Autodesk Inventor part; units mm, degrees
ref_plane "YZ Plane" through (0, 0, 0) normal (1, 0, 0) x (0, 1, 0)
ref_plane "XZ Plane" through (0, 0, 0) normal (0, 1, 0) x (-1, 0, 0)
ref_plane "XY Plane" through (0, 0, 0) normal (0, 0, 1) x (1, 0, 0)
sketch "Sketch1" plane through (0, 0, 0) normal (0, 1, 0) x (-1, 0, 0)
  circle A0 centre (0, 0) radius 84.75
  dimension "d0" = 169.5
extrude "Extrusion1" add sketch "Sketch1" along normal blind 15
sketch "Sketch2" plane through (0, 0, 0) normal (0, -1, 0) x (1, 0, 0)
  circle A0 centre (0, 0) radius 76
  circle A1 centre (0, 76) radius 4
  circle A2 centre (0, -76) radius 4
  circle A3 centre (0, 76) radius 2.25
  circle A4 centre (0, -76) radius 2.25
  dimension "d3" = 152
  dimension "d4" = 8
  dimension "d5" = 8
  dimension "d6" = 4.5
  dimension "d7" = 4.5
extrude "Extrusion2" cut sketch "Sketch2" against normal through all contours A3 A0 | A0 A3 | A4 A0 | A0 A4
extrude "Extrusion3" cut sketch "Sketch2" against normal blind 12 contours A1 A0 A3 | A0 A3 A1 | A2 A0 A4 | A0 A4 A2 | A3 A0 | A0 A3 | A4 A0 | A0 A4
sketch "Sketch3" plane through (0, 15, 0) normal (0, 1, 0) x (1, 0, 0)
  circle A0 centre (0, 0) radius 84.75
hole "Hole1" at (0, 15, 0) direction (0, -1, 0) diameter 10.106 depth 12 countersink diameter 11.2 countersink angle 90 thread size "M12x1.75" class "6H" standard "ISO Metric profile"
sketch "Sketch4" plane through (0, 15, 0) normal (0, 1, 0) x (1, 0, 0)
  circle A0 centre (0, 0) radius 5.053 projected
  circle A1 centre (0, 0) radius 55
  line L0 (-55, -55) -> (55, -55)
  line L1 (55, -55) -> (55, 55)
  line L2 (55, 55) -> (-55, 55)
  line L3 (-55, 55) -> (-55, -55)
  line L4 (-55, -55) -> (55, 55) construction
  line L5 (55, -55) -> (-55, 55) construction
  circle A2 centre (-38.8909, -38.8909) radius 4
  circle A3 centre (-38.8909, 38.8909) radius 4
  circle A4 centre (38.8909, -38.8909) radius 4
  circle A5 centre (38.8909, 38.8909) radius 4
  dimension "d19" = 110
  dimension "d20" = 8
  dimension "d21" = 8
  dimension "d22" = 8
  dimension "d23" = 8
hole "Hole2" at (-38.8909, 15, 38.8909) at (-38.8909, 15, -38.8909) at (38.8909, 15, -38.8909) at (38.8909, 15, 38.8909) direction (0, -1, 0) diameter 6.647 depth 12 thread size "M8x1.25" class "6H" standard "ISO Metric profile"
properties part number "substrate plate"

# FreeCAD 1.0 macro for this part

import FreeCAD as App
import Part
import Sketcher

doc = App.newDocument("Part")
params = doc.addObject("Spreadsheet::Sheet", "Params")
for row, (alias, value) in enumerate([
    ("sketch1_diameter", "169.5 mm"),
    ("pad1_length", "15 mm"),
    ("sketch2_diameter", "4.5 mm"),
    ("sketch3_diameter", "8 mm"),
    ("pocket2_length", "12 mm"),
    ("hole_diameter", "10.106 mm"),
    ("hole_depth", "12 mm"),
    ("hole_csink_diameter", "11.2 mm"),
    ("hole2_diameter", "6.647 mm"),
    ("hole2_depth", "12 mm"),
], start=1):
    params.set(f"A{row}", alias)
    params.set(f"B{row}", "=" + value)
    params.setAlias(f"B{row}", alias)

body = doc.addObject("PartDesign::Body", "Body")

# Sketch on XZ plane
sketch1 = doc.addObject("Sketcher::SketchObject", "Sketch")
body.addObject(sketch1)
sketch1.AttachmentSupport = (doc.XZ_Plane, [""])
sketch1.MapMode = "FlatFace"
sketch1.addGeometry(Part.Circle(App.Vector(0, 0, 0), App.Vector(0, 0, 1), 85), False)
sketch1.addConstraint([
    Sketcher.Constraint("Coincident", 0, 3, -1, 1),
    Sketcher.Constraint("Diameter", 0, 169.5),
])
sketch1.setExpression("Constraints[1]", "Params.sketch1_diameter")
pad1 = doc.addObject("PartDesign::Pad", "Pad")
body.addObject(pad1)
pad1.Profile = sketch1
pad1.setExpression("Length", "Params.pad1_length")
pad1.Reversed = True

# Sketch on XZ plane
sketch2 = doc.addObject("Sketcher::SketchObject", "Sketch001")
body.addObject(sketch2)
sketch2.AttachmentSupport = (doc.XZ_Plane, [""])
sketch2.MapMode = "FlatFace"
sketch2.addGeometry([
    Part.Circle(App.Vector(0, 76, 0), App.Vector(0, 0, 1), 2.2),
    Part.Circle(App.Vector(0, -76, 0), App.Vector(0, 0, 1), 2.2),
], False)
sketch2.addConstraint([
    Sketcher.Constraint("Equal", 0, 1),
    Sketcher.Constraint("Symmetric", 0, 3, 1, 3, -1, 1),
    Sketcher.Constraint("PointOnObject", 0, 3, -2),
    Sketcher.Constraint("Diameter", 0, 4.5),
    Sketcher.Constraint("DistanceY", 1, 3, 0, 3, 152.0),
])
sketch2.setExpression("Constraints[3]", "Params.sketch2_diameter")
pocket1 = doc.addObject("PartDesign::Pocket", "Pocket")
body.addObject(pocket1)
pocket1.Profile = sketch2
pocket1.Type = "ThroughAll"

# Sketch on XZ plane
sketch3 = doc.addObject("Sketcher::SketchObject", "Sketch002")
body.addObject(sketch3)
sketch3.AttachmentSupport = (doc.XZ_Plane, [""])
sketch3.MapMode = "FlatFace"
sketch3.addGeometry([
    Part.Circle(App.Vector(0, 76, 0), App.Vector(0, 0, 1), 4),
    Part.Circle(App.Vector(0, -76, 0), App.Vector(0, 0, 1), 4),
], False)
sketch3.addConstraint([
    Sketcher.Constraint("Equal", 0, 1),
    Sketcher.Constraint("Symmetric", 0, 3, 1, 3, -1, 1),
    Sketcher.Constraint("PointOnObject", 0, 3, -2),
    Sketcher.Constraint("Diameter", 0, 8.0),
    Sketcher.Constraint("DistanceY", 1, 3, 0, 3, 152.0),
])
sketch3.setExpression("Constraints[3]", "Params.sketch3_diameter")
pocket2 = doc.addObject("PartDesign::Pocket", "Pocket001")
body.addObject(pocket2)
pocket2.Profile = sketch3
pocket2.setExpression("Length", "Params.pocket2_length")

# Sketch on XZ plane
sketch4 = doc.addObject("Sketcher::SketchObject", "Sketch003")
body.addObject(sketch4)
sketch4.AttachmentSupport = (doc.XZ_Plane, [""])
sketch4.MapMode = "FlatFace"
sketch4.AttachmentOffset = App.Placement(App.Vector(0, 0, -15), App.Rotation())
sketch4.addGeometry(Part.Circle(App.Vector(0, 0, 0), App.Vector(0, 0, 1), 5), False)
sketch4.addConstraint([
    Sketcher.Constraint("Coincident", 0, 3, -1, 1),
    Sketcher.Constraint("Diameter", 0, 10.106),
])
doc.recompute()
hole = doc.addObject("PartDesign::Hole", "Hole")
body.addObject(hole)
hole.Profile = sketch4
hole.ThreadType = "None"
hole.setExpression("Diameter", "Params.hole_diameter")
hole.DepthType = "Dimension"
hole.setExpression("Depth", "Params.hole_depth")
hole.DrillPoint = "Flat"
hole.HoleCutType = "Countersink"
hole.setExpression("HoleCutDiameter", "Params.hole_csink_diameter")
hole.HoleCutCountersinkAngle = 90
hole.Reversed = True

# Sketch on XZ plane
sketch5 = doc.addObject("Sketcher::SketchObject", "Sketch004")
body.addObject(sketch5)
sketch5.AttachmentSupport = (doc.XZ_Plane, [""])
sketch5.MapMode = "FlatFace"
sketch5.AttachmentOffset = App.Placement(App.Vector(0, 0, -15), App.Rotation())
sketch5.addGeometry([
    Part.Circle(App.Vector(-38.9, 38.9, 0), App.Vector(0, 0, 1), 3.3),
    Part.Circle(App.Vector(-38.9, -38.9, 0), App.Vector(0, 0, 1), 3.3),
    Part.Circle(App.Vector(38.9, -38.9, 0), App.Vector(0, 0, 1), 3.3),
    Part.Circle(App.Vector(38.9, 38.9, 0), App.Vector(0, 0, 1), 3.3),
], False)
sketch5.addConstraint([
    Sketcher.Constraint("Equal", 0, 1),
    Sketcher.Constraint("Equal", 1, 2),
    Sketcher.Constraint("Equal", 2, 3),
    Sketcher.Constraint("Symmetric", 0, 3, 2, 3, -1, 1),
    Sketcher.Constraint("Symmetric", 1, 3, 3, 3, -1, 1),
    Sketcher.Constraint("Symmetric", 1, 3, 2, 3, -2),
    Sketcher.Constraint("Diameter", 0, 6.647),
    Sketcher.Constraint("DistanceX", 0, 3, -1, 1, 38.891),
    Sketcher.Constraint("DistanceY", -1, 1, 0, 3, 38.891),
])
doc.recompute()
hole2 = doc.addObject("PartDesign::Hole", "Hole001")
body.addObject(hole2)
hole2.Profile = sketch5
hole2.ThreadType = "None"
hole2.setExpression("Diameter", "Params.hole2_diameter")
hole2.DepthType = "Dimension"
hole2.setExpression("Depth", "Params.hole2_depth")
hole2.DrillPoint = "Flat"
hole2.Reversed = True

doc.recompute()
